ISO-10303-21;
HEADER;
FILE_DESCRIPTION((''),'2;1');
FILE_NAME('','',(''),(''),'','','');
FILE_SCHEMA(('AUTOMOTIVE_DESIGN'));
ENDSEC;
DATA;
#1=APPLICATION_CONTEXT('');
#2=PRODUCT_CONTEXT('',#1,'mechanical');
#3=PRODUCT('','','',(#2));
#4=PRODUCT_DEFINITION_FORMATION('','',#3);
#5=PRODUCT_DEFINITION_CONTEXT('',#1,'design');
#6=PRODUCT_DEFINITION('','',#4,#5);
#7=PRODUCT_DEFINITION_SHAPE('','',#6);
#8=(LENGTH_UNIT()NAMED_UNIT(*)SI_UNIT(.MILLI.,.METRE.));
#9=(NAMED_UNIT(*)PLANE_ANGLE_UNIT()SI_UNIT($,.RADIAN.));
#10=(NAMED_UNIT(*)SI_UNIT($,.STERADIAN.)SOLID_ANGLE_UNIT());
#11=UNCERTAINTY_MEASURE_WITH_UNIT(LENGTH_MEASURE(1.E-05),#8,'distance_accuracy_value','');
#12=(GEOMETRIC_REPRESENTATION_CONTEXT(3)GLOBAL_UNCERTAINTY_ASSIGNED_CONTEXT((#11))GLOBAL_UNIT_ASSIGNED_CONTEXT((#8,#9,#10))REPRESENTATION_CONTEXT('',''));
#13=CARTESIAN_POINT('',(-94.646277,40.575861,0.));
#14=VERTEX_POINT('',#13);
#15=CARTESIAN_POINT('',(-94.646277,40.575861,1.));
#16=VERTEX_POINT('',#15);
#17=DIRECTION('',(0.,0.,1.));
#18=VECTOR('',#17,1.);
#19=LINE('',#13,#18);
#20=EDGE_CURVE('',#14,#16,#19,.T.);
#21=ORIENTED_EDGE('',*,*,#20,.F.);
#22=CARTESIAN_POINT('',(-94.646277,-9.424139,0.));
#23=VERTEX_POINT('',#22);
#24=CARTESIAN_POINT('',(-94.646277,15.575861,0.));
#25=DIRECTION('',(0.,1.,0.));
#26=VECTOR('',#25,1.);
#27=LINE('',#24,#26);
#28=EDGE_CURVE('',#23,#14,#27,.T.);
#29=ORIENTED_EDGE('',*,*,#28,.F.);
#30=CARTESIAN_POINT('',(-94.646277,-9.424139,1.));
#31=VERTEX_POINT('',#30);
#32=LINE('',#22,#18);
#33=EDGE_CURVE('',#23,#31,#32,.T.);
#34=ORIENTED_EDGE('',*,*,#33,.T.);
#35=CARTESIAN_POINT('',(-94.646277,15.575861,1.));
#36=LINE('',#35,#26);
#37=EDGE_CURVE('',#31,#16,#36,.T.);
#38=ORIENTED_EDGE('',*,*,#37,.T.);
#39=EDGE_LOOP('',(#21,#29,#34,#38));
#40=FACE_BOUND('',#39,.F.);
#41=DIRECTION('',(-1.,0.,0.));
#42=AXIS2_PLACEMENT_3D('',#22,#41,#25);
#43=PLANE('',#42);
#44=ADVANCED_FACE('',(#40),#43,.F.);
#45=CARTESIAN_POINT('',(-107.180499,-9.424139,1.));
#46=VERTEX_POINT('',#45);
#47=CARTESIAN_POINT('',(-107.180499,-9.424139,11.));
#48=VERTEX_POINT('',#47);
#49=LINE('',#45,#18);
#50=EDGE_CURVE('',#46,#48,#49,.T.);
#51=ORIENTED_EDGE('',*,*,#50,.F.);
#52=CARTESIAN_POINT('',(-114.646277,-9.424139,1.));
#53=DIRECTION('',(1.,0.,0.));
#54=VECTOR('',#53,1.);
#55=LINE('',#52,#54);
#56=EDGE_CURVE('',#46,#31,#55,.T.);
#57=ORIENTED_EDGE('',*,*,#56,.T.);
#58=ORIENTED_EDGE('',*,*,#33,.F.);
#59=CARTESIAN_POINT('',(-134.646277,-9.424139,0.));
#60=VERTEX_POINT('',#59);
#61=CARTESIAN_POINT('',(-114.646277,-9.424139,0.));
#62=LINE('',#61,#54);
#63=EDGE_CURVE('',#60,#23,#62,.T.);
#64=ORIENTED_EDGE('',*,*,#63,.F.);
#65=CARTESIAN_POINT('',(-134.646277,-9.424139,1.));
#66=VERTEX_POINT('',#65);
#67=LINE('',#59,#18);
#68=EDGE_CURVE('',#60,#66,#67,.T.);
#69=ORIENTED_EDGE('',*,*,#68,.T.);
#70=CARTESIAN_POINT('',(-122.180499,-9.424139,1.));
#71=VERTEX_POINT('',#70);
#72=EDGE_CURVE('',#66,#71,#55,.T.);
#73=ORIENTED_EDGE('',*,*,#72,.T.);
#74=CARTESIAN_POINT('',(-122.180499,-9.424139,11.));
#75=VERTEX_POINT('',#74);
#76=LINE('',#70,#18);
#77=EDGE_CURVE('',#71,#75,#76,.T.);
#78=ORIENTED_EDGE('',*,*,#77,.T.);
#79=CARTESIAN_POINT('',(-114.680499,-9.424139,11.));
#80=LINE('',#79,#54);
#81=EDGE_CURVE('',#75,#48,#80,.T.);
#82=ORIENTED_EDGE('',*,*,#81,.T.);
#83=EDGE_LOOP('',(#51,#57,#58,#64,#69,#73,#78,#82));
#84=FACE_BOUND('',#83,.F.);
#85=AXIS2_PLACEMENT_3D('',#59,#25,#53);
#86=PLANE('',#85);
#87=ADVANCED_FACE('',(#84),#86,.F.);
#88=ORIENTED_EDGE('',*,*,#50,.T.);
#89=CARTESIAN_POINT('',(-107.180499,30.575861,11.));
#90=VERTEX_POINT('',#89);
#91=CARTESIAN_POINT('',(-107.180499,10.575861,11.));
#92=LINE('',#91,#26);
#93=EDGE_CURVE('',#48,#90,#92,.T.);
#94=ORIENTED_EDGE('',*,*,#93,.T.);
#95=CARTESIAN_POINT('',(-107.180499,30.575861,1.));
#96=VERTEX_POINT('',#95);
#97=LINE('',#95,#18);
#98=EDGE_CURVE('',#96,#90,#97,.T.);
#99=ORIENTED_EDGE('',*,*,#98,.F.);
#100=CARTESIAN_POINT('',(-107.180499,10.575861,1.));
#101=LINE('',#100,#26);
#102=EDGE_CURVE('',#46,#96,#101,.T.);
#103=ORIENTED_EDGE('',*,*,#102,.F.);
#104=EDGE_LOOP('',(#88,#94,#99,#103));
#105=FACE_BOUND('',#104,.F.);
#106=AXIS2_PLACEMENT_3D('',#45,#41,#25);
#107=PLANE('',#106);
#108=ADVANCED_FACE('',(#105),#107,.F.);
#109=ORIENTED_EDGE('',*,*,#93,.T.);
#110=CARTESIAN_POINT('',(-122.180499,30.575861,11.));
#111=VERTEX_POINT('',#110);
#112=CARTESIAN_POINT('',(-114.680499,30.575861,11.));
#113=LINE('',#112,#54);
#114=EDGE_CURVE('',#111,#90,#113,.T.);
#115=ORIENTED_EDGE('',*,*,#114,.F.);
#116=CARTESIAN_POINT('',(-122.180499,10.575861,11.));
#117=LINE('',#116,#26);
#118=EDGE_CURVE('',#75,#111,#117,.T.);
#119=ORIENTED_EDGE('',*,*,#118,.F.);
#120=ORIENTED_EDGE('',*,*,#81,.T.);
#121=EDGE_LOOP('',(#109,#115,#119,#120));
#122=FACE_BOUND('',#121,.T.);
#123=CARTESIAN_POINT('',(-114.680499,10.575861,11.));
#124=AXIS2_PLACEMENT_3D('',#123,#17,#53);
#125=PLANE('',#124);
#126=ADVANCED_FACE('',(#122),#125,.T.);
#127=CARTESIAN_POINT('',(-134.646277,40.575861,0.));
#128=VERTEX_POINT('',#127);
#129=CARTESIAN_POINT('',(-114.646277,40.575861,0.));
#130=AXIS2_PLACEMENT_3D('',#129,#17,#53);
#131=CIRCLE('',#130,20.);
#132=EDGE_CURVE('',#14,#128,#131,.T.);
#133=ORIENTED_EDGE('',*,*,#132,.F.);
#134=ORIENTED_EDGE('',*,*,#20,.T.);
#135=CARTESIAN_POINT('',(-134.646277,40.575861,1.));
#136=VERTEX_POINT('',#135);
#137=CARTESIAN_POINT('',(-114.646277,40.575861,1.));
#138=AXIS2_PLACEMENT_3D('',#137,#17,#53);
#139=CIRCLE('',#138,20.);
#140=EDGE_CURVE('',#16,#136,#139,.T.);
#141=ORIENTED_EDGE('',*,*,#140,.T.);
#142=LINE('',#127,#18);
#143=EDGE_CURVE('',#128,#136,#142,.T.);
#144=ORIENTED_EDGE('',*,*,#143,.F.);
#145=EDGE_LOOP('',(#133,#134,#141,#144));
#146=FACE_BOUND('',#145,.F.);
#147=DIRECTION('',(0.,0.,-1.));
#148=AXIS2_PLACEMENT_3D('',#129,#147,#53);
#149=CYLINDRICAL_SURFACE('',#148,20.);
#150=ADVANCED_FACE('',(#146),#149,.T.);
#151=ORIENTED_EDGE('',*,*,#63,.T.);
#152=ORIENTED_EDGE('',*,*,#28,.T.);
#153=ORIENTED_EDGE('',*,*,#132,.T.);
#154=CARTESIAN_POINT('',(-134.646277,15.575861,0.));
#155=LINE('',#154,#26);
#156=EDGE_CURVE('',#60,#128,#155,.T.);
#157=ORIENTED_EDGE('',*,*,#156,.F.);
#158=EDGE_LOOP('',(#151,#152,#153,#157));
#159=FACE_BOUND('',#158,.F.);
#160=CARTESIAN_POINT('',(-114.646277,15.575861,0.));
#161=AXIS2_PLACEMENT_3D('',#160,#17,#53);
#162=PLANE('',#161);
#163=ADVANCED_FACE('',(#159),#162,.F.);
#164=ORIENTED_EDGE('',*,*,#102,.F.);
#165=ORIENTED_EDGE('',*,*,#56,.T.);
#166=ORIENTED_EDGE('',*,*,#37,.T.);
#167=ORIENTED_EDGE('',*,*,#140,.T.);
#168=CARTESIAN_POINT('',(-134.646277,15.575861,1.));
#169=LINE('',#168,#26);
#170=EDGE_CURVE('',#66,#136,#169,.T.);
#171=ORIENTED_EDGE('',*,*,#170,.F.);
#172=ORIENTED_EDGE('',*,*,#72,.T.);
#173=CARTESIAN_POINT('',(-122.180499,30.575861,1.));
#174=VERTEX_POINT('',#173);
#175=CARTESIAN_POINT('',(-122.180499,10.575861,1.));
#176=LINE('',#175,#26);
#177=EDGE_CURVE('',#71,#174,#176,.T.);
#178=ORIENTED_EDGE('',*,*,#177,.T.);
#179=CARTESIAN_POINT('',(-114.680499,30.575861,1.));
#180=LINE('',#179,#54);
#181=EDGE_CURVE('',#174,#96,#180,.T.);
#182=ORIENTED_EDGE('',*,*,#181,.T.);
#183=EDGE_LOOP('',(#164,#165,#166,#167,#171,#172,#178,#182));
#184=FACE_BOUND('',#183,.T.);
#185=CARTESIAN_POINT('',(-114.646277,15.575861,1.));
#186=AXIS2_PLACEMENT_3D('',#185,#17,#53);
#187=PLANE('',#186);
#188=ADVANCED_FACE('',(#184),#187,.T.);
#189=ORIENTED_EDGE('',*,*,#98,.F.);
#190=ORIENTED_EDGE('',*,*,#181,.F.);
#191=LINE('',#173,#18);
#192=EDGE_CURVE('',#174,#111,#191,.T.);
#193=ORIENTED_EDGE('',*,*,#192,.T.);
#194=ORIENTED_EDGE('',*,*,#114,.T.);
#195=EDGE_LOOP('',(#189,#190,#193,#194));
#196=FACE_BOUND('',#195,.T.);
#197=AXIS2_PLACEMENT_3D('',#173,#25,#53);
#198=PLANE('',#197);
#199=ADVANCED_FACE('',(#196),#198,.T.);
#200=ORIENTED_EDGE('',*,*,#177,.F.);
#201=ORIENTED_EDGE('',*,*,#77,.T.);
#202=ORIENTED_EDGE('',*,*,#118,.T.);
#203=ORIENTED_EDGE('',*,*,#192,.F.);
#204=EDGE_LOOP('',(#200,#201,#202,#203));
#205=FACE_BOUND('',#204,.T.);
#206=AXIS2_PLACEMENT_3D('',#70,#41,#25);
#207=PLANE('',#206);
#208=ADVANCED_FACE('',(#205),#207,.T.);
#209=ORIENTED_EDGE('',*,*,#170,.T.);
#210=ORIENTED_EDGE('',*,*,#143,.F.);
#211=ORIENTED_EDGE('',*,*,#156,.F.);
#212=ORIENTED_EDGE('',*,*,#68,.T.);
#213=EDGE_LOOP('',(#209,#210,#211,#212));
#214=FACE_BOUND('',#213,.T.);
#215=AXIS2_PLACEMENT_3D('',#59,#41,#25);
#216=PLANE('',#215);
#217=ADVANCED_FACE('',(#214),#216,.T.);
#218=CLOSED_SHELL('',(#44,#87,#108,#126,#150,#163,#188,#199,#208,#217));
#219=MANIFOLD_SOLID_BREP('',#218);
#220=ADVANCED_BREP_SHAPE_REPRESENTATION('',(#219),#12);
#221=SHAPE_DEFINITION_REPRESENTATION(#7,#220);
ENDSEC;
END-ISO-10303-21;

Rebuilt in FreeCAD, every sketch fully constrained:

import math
import FreeCAD as App
import Part
import Sketcher
from FreeCAD import Vector
Q = App.Units.Quantity

doc = App.newDocument("Part")
params = doc.addObject("Spreadsheet::Sheet", "Params")
for row, (alias, value) in enumerate([
    ("sketch1_radius", "20 mm"),
    ("sketch1_height", "50 mm"),
    ("pad1_length", "1 mm"),
    ("sketch2_width", "15 mm"),
    ("sketch2_height", "40 mm"),
    ("pad2_length", "10 mm"),
], start=1):
    params.set(f"A{row}", alias)
    params.set(f"B{row}", "=" + value)
    params.setAlias(f"B{row}", alias)

body = doc.addObject("PartDesign::Body", "Body")

# Sketch on XY plane
sketch1 = doc.addObject("Sketcher::SketchObject", "Sketch")
body.addObject(sketch1)
sketch1.AttachmentSupport = (doc.XY_Plane, [""])
sketch1.MapMode = "FlatFace"
sketch1.addGeometry(Part.LineSegment(Vector(-135, 41, 0), Vector(-135, -9, 0)), False)
sketch1.addGeometry(Part.LineSegment(Vector(-135, -9, 0), Vector(-95, -9, 0)), False)
sketch1.addGeometry(Part.LineSegment(Vector(-95, -9, 0), Vector(-95, 41, 0)), False)
sketch1.addGeometry(Part.ArcOfCircle(Part.Circle(Vector(-115, 41, 0), Vector(0, 0, 1), 20), math.radians(0), math.radians(180)), False)
sketch1.addConstraint(Sketcher.Constraint("Coincident", 0, 2, 1, 1))
sketch1.addConstraint(Sketcher.Constraint("Coincident", 1, 2, 2, 1))
sketch1.addConstraint(Sketcher.Constraint("Tangent", 2, 2, 3, 1))
sketch1.addConstraint(Sketcher.Constraint("Tangent", 3, 2, 0, 1))
sketch1.addConstraint(Sketcher.Constraint("Vertical", 0))
sketch1.addConstraint(Sketcher.Constraint("Horizontal", 1))
sketch1.addConstraint(Sketcher.Constraint("Vertical", 2))
sketch1.addConstraint(Sketcher.Constraint("Radius", 3, Q("20 mm")))
sketch1.addConstraint(Sketcher.Constraint("DistanceY", 0, 2, 0, 1, Q("50 mm")))
sketch1.addConstraint(Sketcher.Constraint("DistanceY", -1, 1, 3, 3, Q("40.575861 mm")))
sketch1.addConstraint(Sketcher.Constraint("DistanceX", 3, 3, -1, 1, Q("114.646277 mm")))
sketch1.setExpression("Constraints[7]", "Params.sketch1_radius")
sketch1.setExpression("Constraints[8]", "Params.sketch1_height")
pad1 = doc.addObject("PartDesign::Pad", "Pad")
body.addObject(pad1)
pad1.Profile = sketch1
pad1.setExpression("Length", "Params.pad1_length")

# Sketch on XY plane
sketch2 = doc.addObject("Sketcher::SketchObject", "Sketch001")
body.addObject(sketch2)
sketch2.AttachmentSupport = (doc.XY_Plane, [""])
sketch2.MapMode = "FlatFace"
sketch2.AttachmentOffset = App.Placement(Vector(0, 0, 1), App.Rotation())
sketch2.addGeometry(Part.LineSegment(Vector(-122, 31, 0), Vector(-122, -9, 0)), False)
sketch2.addGeometry(Part.LineSegment(Vector(-122, -9, 0), Vector(-107, -9, 0)), False)
sketch2.addGeometry(Part.LineSegment(Vector(-107, -9, 0), Vector(-107, 31, 0)), False)
sketch2.addGeometry(Part.LineSegment(Vector(-107, 31, 0), Vector(-122, 31, 0)), False)
sketch2.addConstraint(Sketcher.Constraint("Coincident", 0, 2, 1, 1))
sketch2.addConstraint(Sketcher.Constraint("Coincident", 1, 2, 2, 1))
sketch2.addConstraint(Sketcher.Constraint("Coincident", 2, 2, 3, 1))
sketch2.addConstraint(Sketcher.Constraint("Coincident", 3, 2, 0, 1))
sketch2.addConstraint(Sketcher.Constraint("Vertical", 0))
sketch2.addConstraint(Sketcher.Constraint("Horizontal", 1))
sketch2.addConstraint(Sketcher.Constraint("Vertical", 2))
sketch2.addConstraint(Sketcher.Constraint("Horizontal", 3))
sketch2.addConstraint(Sketcher.Constraint("DistanceX", 1, 1, 1, 2, Q("15 mm")))
sketch2.addConstraint(Sketcher.Constraint("DistanceY", 0, 2, 0, 1, Q("40 mm")))
sketch2.addConstraint(Sketcher.Constraint("DistanceX", 0, 2, -1, 1, Q("122.180499 mm")))
sketch2.addConstraint(Sketcher.Constraint("DistanceY", 0, 2, -1, 1, Q("9.424139 mm")))
sketch2.setExpression("Constraints[8]", "Params.sketch2_width")
sketch2.setExpression("Constraints[9]", "Params.sketch2_height")
pad2 = doc.addObject("PartDesign::Pad", "Pad001")
body.addObject(pad2)
pad2.Profile = sketch2
pad2.setExpression("Length", "Params.pad2_length")

doc.recompute()
